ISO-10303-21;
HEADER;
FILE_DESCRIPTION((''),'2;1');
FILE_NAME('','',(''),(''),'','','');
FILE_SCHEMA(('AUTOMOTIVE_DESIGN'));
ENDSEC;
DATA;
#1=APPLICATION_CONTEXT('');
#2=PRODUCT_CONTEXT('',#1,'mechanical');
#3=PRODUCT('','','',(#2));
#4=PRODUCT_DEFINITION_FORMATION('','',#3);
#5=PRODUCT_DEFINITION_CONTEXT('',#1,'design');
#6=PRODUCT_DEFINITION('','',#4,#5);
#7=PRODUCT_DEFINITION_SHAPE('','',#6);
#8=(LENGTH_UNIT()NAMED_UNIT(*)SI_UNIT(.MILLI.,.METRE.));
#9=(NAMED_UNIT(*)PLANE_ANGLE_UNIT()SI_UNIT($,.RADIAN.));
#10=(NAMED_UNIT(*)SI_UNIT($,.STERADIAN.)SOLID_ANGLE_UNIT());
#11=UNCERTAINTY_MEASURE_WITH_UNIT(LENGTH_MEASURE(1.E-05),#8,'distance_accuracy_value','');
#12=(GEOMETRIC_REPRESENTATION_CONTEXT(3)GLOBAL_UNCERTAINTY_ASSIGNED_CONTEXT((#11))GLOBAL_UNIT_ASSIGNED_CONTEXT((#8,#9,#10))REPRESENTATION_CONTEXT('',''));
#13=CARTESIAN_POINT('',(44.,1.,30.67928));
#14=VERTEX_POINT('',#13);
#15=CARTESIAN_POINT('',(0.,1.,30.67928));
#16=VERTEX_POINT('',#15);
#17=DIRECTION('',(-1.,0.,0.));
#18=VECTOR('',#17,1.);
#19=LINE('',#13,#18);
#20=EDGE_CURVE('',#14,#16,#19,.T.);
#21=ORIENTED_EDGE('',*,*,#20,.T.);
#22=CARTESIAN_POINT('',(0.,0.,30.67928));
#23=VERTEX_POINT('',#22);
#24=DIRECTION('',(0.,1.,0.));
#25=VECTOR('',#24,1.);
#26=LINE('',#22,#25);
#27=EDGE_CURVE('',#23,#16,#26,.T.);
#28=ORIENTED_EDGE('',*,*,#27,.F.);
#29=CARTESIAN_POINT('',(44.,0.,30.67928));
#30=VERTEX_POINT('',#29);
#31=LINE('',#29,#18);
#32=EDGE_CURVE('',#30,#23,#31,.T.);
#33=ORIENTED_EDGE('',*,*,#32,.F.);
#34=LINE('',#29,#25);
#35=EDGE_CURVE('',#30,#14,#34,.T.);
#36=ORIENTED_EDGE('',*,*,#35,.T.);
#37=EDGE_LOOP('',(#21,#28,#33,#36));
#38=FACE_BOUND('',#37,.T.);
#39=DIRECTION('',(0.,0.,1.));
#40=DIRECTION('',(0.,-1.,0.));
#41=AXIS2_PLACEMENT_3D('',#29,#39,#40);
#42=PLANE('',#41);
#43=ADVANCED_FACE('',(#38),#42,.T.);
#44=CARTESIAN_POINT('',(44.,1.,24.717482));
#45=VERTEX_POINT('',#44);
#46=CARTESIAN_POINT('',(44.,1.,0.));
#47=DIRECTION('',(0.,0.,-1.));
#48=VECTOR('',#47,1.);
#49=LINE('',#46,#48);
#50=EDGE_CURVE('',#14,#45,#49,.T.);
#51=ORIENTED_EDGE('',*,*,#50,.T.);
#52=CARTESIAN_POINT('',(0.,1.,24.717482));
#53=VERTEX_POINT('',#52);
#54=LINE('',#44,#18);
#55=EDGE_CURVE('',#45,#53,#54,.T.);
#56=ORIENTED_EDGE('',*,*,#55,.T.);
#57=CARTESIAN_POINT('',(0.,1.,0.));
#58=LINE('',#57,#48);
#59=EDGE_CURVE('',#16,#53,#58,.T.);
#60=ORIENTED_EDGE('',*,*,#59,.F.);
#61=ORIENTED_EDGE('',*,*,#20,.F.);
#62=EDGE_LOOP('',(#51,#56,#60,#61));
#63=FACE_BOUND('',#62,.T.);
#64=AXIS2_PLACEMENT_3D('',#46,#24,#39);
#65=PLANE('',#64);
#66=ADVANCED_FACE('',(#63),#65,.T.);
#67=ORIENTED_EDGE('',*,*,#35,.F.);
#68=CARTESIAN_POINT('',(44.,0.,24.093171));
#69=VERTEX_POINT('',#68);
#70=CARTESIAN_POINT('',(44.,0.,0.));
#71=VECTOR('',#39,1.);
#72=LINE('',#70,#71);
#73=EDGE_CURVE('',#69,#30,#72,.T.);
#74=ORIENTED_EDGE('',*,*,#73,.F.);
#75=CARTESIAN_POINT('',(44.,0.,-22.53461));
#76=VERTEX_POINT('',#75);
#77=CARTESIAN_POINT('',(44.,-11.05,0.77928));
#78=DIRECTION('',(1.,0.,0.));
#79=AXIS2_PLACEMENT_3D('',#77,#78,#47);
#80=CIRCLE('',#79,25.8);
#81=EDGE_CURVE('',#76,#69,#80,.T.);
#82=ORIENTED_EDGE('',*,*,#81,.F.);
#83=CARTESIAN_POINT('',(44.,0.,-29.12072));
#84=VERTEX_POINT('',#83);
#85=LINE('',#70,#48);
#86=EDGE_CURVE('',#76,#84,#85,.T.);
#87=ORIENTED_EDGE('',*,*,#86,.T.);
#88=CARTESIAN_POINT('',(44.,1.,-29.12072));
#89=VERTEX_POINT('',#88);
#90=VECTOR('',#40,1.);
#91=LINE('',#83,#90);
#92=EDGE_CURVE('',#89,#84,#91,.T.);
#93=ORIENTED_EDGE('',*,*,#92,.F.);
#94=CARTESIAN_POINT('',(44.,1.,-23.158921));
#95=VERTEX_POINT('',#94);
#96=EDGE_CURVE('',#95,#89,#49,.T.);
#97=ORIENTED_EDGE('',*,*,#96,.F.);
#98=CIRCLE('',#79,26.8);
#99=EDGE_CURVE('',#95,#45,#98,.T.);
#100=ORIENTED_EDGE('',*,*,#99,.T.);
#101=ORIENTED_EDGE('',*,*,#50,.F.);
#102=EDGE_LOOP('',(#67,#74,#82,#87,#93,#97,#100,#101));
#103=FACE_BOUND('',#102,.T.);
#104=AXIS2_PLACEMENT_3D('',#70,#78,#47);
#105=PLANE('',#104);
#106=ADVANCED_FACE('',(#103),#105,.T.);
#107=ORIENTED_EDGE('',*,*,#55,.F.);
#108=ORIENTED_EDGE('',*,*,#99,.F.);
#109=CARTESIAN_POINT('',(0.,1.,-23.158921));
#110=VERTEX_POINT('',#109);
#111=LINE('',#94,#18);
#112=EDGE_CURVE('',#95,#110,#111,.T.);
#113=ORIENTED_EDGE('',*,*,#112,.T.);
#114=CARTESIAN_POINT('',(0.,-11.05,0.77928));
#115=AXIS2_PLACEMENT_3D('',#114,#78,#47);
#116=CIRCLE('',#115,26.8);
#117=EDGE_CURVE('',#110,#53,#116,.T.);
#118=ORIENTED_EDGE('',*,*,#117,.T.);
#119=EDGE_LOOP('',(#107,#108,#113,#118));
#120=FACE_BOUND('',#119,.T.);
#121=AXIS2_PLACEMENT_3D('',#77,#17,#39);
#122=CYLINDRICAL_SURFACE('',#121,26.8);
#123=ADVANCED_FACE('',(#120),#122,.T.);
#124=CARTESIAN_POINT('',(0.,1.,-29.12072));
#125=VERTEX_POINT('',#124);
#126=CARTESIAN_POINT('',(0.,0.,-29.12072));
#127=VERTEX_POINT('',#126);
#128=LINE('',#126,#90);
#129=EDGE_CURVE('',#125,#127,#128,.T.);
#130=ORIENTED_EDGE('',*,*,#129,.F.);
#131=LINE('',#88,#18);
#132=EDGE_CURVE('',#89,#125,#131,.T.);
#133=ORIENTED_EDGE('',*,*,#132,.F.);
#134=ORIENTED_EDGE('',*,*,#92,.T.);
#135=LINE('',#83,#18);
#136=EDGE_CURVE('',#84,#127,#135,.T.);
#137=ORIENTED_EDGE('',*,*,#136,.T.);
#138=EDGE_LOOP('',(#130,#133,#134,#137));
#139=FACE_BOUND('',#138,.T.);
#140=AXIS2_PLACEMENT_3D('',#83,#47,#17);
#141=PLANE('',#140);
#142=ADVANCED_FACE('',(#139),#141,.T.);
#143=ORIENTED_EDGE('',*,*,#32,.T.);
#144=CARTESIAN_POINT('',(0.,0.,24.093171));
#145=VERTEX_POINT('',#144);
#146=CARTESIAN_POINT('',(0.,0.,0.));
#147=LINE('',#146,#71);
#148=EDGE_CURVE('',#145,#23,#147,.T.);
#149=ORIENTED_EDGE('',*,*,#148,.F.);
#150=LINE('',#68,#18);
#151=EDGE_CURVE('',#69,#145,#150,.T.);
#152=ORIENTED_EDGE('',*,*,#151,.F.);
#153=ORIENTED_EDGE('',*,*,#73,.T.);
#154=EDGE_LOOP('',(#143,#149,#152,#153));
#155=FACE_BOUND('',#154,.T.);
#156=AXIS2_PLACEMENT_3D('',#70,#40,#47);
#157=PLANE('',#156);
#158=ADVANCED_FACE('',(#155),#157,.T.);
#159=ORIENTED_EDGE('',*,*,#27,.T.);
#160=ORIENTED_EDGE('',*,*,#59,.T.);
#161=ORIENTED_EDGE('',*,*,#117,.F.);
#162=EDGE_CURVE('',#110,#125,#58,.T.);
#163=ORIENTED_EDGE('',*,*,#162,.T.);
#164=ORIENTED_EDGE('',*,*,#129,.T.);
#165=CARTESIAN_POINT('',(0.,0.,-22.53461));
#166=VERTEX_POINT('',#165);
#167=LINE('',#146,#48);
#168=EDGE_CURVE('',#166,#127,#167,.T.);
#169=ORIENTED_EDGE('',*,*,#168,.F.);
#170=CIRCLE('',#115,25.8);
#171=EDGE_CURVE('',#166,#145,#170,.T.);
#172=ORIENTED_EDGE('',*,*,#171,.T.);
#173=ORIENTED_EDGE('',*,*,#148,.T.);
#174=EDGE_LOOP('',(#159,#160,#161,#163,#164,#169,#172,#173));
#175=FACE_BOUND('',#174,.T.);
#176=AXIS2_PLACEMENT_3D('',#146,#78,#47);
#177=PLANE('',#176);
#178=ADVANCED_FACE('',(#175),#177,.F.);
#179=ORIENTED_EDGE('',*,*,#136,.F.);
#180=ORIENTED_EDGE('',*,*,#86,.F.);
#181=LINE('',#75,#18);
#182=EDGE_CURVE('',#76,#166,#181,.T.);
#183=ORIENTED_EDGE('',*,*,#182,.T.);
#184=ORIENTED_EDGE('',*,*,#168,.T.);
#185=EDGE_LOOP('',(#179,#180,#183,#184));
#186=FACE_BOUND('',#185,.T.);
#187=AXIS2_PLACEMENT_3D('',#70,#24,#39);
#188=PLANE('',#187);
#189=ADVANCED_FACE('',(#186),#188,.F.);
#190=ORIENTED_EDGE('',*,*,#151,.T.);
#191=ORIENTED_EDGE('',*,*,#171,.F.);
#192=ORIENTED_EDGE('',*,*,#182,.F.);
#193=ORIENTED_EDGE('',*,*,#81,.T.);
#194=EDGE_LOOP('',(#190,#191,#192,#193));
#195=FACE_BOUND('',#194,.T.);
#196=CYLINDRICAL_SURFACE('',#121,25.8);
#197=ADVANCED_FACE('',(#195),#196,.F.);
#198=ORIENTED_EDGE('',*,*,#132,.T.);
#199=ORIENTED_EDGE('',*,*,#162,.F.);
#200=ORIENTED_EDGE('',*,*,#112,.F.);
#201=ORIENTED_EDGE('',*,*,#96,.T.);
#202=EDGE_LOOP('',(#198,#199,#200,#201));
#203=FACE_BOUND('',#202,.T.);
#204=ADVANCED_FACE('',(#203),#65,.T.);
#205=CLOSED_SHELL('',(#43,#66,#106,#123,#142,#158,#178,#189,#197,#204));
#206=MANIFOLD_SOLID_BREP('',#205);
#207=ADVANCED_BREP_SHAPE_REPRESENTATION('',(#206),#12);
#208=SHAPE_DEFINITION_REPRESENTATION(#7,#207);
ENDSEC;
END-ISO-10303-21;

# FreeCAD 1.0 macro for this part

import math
import FreeCAD as App
import Part
import Sketcher
from FreeCAD import Vector
Q = App.Units.Quantity

doc = App.newDocument("Part")
body = doc.addObject("PartDesign::Body", "Body")

# Sketch on YZ plane
sketch1 = doc.addObject("Sketcher::SketchObject", "Sketch")
body.addObject(sketch1)
sketch1.AttachmentSupport = (doc.YZ_Plane, [""])
sketch1.MapMode = "FlatFace"
sketch1.addGeometry([
    Part.ArcOfCircle(Part.Circle(Vector(-11.1, 0.8, 0), Vector(0, 0, 1), 25.8), math.radians(-65), math.radians(65)),  # 0
    Part.LineSegment(Vector(0, -22.5, 0), Vector(0, -29.1, 0)),  # 1
    Part.LineSegment(Vector(0, -29.1, 0), Vector(1, -29.1, 0)),  # 2
    Part.LineSegment(Vector(1, -29.1, 0), Vector(1, -23.2, 0)),  # 3
    Part.ArcOfCircle(Part.Circle(Vector(-11, 0.8, 0), Vector(0, 0, 1), 26.8), math.radians(-63), math.radians(63)),  # 4
    Part.LineSegment(Vector(1, 24.7, 0), Vector(1, 30.7, 0)),  # 5
    Part.LineSegment(Vector(1, 30.7, 0), Vector(0, 30.7, 0)),  # 6
    Part.LineSegment(Vector(0, 30.7, 0), Vector(0, 24.1, 0)),  # 7
], False)
sketch1.addConstraint([
    Sketcher.Constraint("Coincident", 0, 1, 1, 1),
    Sketcher.Constraint("Coincident", 1, 2, 2, 1),
    Sketcher.Constraint("Coincident", 2, 2, 3, 1),
    Sketcher.Constraint("Coincident", 3, 2, 4, 1),
    Sketcher.Constraint("Coincident", 4, 2, 5, 1),
    Sketcher.Constraint("Coincident", 5, 2, 6, 1),
    Sketcher.Constraint("Coincident", 6, 2, 7, 1),
    Sketcher.Constraint("Coincident", 7, 2, 0, 2),
    Sketcher.Constraint("Vertical", 1),
    Sketcher.Constraint("Horizontal", 2),
    Sketcher.Constraint("Vertical", 3),
    Sketcher.Constraint("Vertical", 5),
    Sketcher.Constraint("Horizontal", 6),
    Sketcher.Constraint("Vertical", 7),
    Sketcher.Constraint("Coincident", 4, 3, 0, 3),
    Sketcher.Constraint("PointOnObject", 0, 1, -2),
    Sketcher.Constraint("PointOnObject", 6, 2, -2),
    Sketcher.Constraint("Vertical", 3, 2, 4, 2),
    Sketcher.Constraint("Equal", 3, 5),
    Sketcher.Constraint("Radius", 0, Q("25.8 mm")),
    Sketcher.Constraint("Radius", 4, Q("26.8 mm")),
    Sketcher.Constraint("DistanceX", 2, 1, 2, 2, Q("1 mm")),
    Sketcher.Constraint("DistanceY", 1, 2, 4, 3, Q("29.9 mm")),
    Sketcher.Constraint("DistanceX", 0, 3, -1, 1, Q("11.05 mm")),
    Sketcher.Constraint("DistanceY", -1, 1, 0, 3, Q("0.77928 mm")),
])
pad1 = doc.addObject("PartDesign::Pad", "Pad")
body.addObject(pad1)
pad1.Profile = sketch1
pad1.Length = 44

doc.recompute()
